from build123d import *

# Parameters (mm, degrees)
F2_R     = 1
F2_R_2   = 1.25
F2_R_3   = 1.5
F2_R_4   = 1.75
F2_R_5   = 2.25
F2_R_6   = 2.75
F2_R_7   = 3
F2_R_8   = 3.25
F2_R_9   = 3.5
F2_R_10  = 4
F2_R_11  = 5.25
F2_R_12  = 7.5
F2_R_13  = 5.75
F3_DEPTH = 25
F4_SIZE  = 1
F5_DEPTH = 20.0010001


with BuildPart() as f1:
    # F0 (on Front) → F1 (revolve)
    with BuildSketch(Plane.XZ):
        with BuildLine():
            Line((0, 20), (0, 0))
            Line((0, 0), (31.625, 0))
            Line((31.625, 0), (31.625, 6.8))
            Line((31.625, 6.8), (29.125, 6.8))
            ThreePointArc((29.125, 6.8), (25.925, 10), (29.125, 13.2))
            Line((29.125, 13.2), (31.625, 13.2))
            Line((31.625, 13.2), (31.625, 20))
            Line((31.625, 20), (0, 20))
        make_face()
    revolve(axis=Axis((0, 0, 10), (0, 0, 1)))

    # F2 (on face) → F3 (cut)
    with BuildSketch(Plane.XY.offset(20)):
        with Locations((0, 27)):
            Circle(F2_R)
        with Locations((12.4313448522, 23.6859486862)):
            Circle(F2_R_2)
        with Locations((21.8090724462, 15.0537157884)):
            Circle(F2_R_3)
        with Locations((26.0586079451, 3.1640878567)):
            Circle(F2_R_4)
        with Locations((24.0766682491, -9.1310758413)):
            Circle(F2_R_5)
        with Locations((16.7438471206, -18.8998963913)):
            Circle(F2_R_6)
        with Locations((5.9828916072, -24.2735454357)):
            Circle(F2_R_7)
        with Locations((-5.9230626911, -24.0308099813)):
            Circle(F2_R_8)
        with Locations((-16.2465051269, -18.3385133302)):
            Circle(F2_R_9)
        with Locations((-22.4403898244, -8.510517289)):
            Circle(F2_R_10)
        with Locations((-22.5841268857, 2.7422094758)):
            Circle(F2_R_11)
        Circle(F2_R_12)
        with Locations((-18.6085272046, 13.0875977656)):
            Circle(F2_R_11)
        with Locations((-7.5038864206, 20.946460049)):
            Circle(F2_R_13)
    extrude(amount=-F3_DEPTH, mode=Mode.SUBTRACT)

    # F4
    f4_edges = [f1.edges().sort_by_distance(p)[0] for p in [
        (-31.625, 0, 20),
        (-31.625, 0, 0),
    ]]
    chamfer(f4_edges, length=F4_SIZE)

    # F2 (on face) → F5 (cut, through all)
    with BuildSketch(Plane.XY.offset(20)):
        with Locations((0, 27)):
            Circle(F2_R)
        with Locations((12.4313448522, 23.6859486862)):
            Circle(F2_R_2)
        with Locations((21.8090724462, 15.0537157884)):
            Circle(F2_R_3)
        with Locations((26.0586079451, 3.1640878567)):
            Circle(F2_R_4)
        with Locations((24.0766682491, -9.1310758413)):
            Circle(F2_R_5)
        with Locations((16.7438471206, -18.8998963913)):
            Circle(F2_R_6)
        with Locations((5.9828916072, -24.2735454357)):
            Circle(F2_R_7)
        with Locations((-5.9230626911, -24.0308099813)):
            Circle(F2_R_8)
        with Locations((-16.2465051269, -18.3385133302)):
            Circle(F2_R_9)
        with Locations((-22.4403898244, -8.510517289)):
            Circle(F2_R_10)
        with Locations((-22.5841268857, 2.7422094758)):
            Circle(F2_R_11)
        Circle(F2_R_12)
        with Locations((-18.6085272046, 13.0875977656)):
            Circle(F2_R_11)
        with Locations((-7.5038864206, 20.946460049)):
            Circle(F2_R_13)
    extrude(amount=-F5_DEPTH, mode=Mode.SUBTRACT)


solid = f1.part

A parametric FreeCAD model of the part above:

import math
import FreeCAD as App
import Part
import Sketcher


def edges_at(feature, points):
    """Names of the edges that pass closest to the given points."""
    edges = feature.Shape.Edges
    near = lambda p: min(range(len(edges)), key=lambda i: edges[i].distToShape(Part.Vertex(*p))[0])
    return sorted({f"Edge{near(p) + 1}" for p in points})

doc = App.newDocument("Part")
body = doc.addObject("PartDesign::Body", "Body")

sketch1 = body.newObject("Sketcher::SketchObject", "Sketch")
sketch1.AttachmentSupport = (doc.getObject("XZ_Plane"), [""])
sketch1.MapMode = "FlatFace"
sketch1.addGeometry([
    Part.LineSegment(App.Vector(0, 20, 0), App.Vector(0, 0, 0)),
    Part.LineSegment(App.Vector(0, 0, 0), App.Vector(31.6, 0, 0)),
    Part.LineSegment(App.Vector(31.6, 0, 0), App.Vector(31.6, 6.8, 0)),
    Part.LineSegment(App.Vector(31.6, 6.8, 0), App.Vector(29.1, 6.8, 0)),
    Part.ArcOfCircle(Part.Circle(App.Vector(29.1, 10, 0), App.Vector(0, 0, 1), 3.2), math.radians(90), math.radians(270)),
    Part.LineSegment(App.Vector(29.1, 13.2, 0), App.Vector(31.6, 13.2, 0)),
    Part.LineSegment(App.Vector(31.6, 13.2, 0), App.Vector(31.6, 20, 0)),
    Part.LineSegment(App.Vector(31.6, 20, 0), App.Vector(0, 20, 0)),
], False)
sketch1.addConstraint([
    Sketcher.Constraint("Coincident", 0, 2, 1, 1),
    Sketcher.Constraint("Coincident", 1, 2, 2, 1),
    Sketcher.Constraint("Coincident", 2, 2, 3, 1),
    Sketcher.Constraint("Tangent", 3, 2, 4, 2),
    Sketcher.Constraint("Tangent", 4, 1, 5, 1),
    Sketcher.Constraint("Coincident", 5, 2, 6, 1),
    Sketcher.Constraint("Coincident", 6, 2, 7, 1),
    Sketcher.Constraint("Coincident", 7, 2, 0, 1),
    Sketcher.Constraint("Vertical", 0),
    Sketcher.Constraint("Horizontal", 1),
    Sketcher.Constraint("Vertical", 2),
    Sketcher.Constraint("Horizontal", 3),
    Sketcher.Constraint("Horizontal", 5),
    Sketcher.Constraint("Vertical", 6),
    Sketcher.Constraint("Horizontal", 7),
    Sketcher.Constraint("Coincident", 0, 2, -1, 1),
    Sketcher.Constraint("Vertical", 2, 2, 5, 2),
    Sketcher.Constraint("Equal", 2, 6),
    Sketcher.Constraint("Radius", 4, 3.2),
    Sketcher.Constraint("DistanceY", 0, 2, 0, 1, 20.0),
    Sketcher.Constraint("DistanceX", 3, 2, 3, 1, 2.5),
    Sketcher.Constraint("DistanceX", 1, 1, 1, 2, 31.625),
])
revolution = body.newObject("PartDesign::Revolution", "Revolution")
revolution.Profile = sketch1
revolution.ReferenceAxis = (sketch1, ["V_Axis"])
revolution.Angle = 360

sketch2 = body.newObject("Sketcher::SketchObject", "Sketch001")
sketch2.AttachmentSupport = (doc.getObject("XY_Plane"), [""])
sketch2.MapMode = "FlatFace"
sketch2.AttachmentOffset = App.Placement(App.Vector(0, 0, 20), App.Rotation())
sketch2.addGeometry([
    Part.Circle(App.Vector(0, 27, 0), App.Vector(0, 0, 1), 1),
    Part.Circle(App.Vector(12.4, 23.7, 0), App.Vector(0, 0, 1), 1.2),
    Part.Circle(App.Vector(21.8, 15.1, 0), App.Vector(0, 0, 1), 1.5),
    Part.Circle(App.Vector(26.1, 3.2, 0), App.Vector(0, 0, 1), 1.8),
    Part.Circle(App.Vector(24.1, -9.1, 0), App.Vector(0, 0, 1), 2.2),
    Part.Circle(App.Vector(16.7, -18.9, 0), App.Vector(0, 0, 1), 2.8),
    Part.Circle(App.Vector(6, -24.3, 0), App.Vector(0, 0, 1), 3),
    Part.Circle(App.Vector(-5.9, -24, 0), App.Vector(0, 0, 1), 3.2),
    Part.Circle(App.Vector(-16.2, -18.3, 0), App.Vector(0, 0, 1), 3.5),
    Part.Circle(App.Vector(-22.4, -8.5, 0), App.Vector(0, 0, 1), 4),
    Part.Circle(App.Vector(-22.6, 2.7, 0), App.Vector(0, 0, 1), 5.2),
    Part.Circle(App.Vector(0, 0, 0), App.Vector(0, 0, 1), 7.5),
    Part.Circle(App.Vector(-18.6, 13.1, 0), App.Vector(0, 0, 1), 5.2),
    Part.Circle(App.Vector(-7.5, 20.9, 0), App.Vector(0, 0, 1), 5.8),
], False)
sketch2.addConstraint([
    Sketcher.Constraint("Coincident", 11, 3, -1, 1),
    Sketcher.Constraint("Equal", 10, 12),
    Sketcher.Constraint("PointOnObject", 0, 3, -2),
    Sketcher.Constraint("Diameter", 0, 2.0),
    Sketcher.Constraint("Diameter", 2, 3.0),
    Sketcher.Constraint("Diameter", 6, 6.0),
    Sketcher.Constraint("Diameter", 8, 7.0),
    Sketcher.Constraint("Diameter", 9, 8.0),
    Sketcher.Constraint("Diameter", 11, 15.0),
    Sketcher.Constraint("Diameter", 1, 2.5),
    Sketcher.Constraint("Diameter", 3, 3.5),
    Sketcher.Constraint("Diameter", 4, 4.5),
    Sketcher.Constraint("Diameter", 5, 5.5),
    Sketcher.Constraint("Diameter", 7, 6.5),
    Sketcher.Constraint("Diameter", 10, 10.5),
    Sketcher.Constraint("Diameter", 13, 11.5),
    Sketcher.Constraint("DistanceY", -1, 1, 0, 3, 27.0),
    Sketcher.Constraint("DistanceY", 8, 3, 3, 3, 21.502601),
    Sketcher.Constraint("DistanceX", 10, 3, 12, 3, 3.9756),
    Sketcher.Constraint("DistanceY", -1, 1, 1, 3, 23.685949),
    Sketcher.Constraint("DistanceX", -1, 1, 4, 3, 24.076668),
    Sketcher.Constraint("DistanceX", -1, 1, 6, 3, 5.982892),
    Sketcher.Constraint("DistanceY", 7, 3, -1, 1, 24.03081),
    Sketcher.Constraint("DistanceX", 9, 3, -1, 1, 22.44039),
    Sketcher.Constraint("DistanceY", -1, 1, 10, 3, 2.742209),
    Sketcher.Constraint("DistanceY", -1, 1, 13, 3, 20.94646),
    Sketcher.Constraint("DistanceY", 3, 3, 1, 3, 20.521861),
    Sketcher.Constraint("DistanceX", 4, 3, 3, 3, 1.98194),
    Sketcher.Constraint("DistanceY", 4, 3, 2, 3, 24.184792),
    Sketcher.Constraint("DistanceX", 5, 3, 4, 3, 7.332821),
    Sketcher.Constraint("DistanceY", 5, 3, 4, 3, 9.768821),
    Sketcher.Constraint("DistanceY", 6, 3, 5, 3, 5.373649),
    Sketcher.Constraint("DistanceX", 6, 3, 2, 3, 15.826181),
    Sketcher.Constraint("DistanceX", 7, 3, 5, 3, 22.66691),
    Sketcher.Constraint("DistanceY", 6, 3, 9, 3, 15.763028),
    Sketcher.Constraint("DistanceX", 10, 3, 8, 3, 6.337622),
    Sketcher.Constraint("DistanceX", 10, 3, 6, 3, 28.567018),
    Sketcher.Constraint("DistanceY", 10, 3, 12, 3, 10.345388),
    Sketcher.Constraint("DistanceX", 12, 3, 13, 3, 11.104641),
    Sketcher.Constraint("DistanceX", 13, 3, 1, 3, 19.935231),
    Sketcher.Constraint("DistanceY", -1, 1, 2, 3, 15.053716),
])
pocket1 = body.newObject("PartDesign::Pocket", "Pocket")
pocket1.Profile = sketch2
pocket1.Length = 25
doc.recompute()

chamfer = body.newObject("PartDesign::Chamfer", "Chamfer")
chamfer.Base = (pocket1, edges_at(pocket1, [(-31.625, 0, 20), (-31.625, 0, 0)]))
chamfer.Size = 1

sketch3 = body.newObject("Sketcher::SketchObject", "Sketch002")
sketch3.AttachmentSupport = (doc.getObject("XY_Plane"), [""])
sketch3.MapMode = "FlatFace"
sketch3.AttachmentOffset = App.Placement(App.Vector(0, 0, 20), App.Rotation())
sketch3.addGeometry([
    Part.Circle(App.Vector(0, 27, 0), App.Vector(0, 0, 1), 1),
    Part.Circle(App.Vector(12.4, 23.7, 0), App.Vector(0, 0, 1), 1.2),
    Part.Circle(App.Vector(21.8, 15.1, 0), App.Vector(0, 0, 1), 1.5),
    Part.Circle(App.Vector(26.1, 3.2, 0), App.Vector(0, 0, 1), 1.8),
    Part.Circle(App.Vector(24.1, -9.1, 0), App.Vector(0, 0, 1), 2.2),
    Part.Circle(App.Vector(16.7, -18.9, 0), App.Vector(0, 0, 1), 2.8),
    Part.Circle(App.Vector(6, -24.3, 0), App.Vector(0, 0, 1), 3),
    Part.Circle(App.Vector(-5.9, -24, 0), App.Vector(0, 0, 1), 3.2),
    Part.Circle(App.Vector(-16.2, -18.3, 0), App.Vector(0, 0, 1), 3.5),
    Part.Circle(App.Vector(-22.4, -8.5, 0), App.Vector(0, 0, 1), 4),
    Part.Circle(App.Vector(-22.6, 2.7, 0), App.Vector(0, 0, 1), 5.2),
    Part.Circle(App.Vector(0, 0, 0), App.Vector(0, 0, 1), 7.5),
    Part.Circle(App.Vector(-18.6, 13.1, 0), App.Vector(0, 0, 1), 5.2),
    Part.Circle(App.Vector(-7.5, 20.9, 0), App.Vector(0, 0, 1), 5.8),
], False)
sketch3.addConstraint([
    Sketcher.Constraint("Coincident", 11, 3, -1, 1),
    Sketcher.Constraint("Equal", 10, 12),
    Sketcher.Constraint("PointOnObject", 0, 3, -2),
    Sketcher.Constraint("Diameter", 0, 2.0),
    Sketcher.Constraint("Diameter", 2, 3.0),
    Sketcher.Constraint("Diameter", 6, 6.0),
    Sketcher.Constraint("Diameter", 8, 7.0),
    Sketcher.Constraint("Diameter", 9, 8.0),
    Sketcher.Constraint("Diameter", 11, 15.0),
    Sketcher.Constraint("Diameter", 1, 2.5),
    Sketcher.Constraint("Diameter", 3, 3.5),
    Sketcher.Constraint("Diameter", 4, 4.5),
    Sketcher.Constraint("Diameter", 5, 5.5),
    Sketcher.Constraint("Diameter", 7, 6.5),
    Sketcher.Constraint("Diameter", 10, 10.5),
    Sketcher.Constraint("Diameter", 13, 11.5),
    Sketcher.Constraint("DistanceY", -1, 1, 0, 3, 27.0),
    Sketcher.Constraint("DistanceY", 8, 3, 3, 3, 21.502601),
    Sketcher.Constraint("DistanceX", 10, 3, 12, 3, 3.9756),
    Sketcher.Constraint("DistanceY", -1, 1, 1, 3, 23.685949),
    Sketcher.Constraint("DistanceX", -1, 1, 4, 3, 24.076668),
    Sketcher.Constraint("DistanceX", -1, 1, 6, 3, 5.982892),
    Sketcher.Constraint("DistanceY", 7, 3, -1, 1, 24.03081),
    Sketcher.Constraint("DistanceX", 9, 3, -1, 1, 22.44039),
    Sketcher.Constraint("DistanceY", -1, 1, 10, 3, 2.742209),
    Sketcher.Constraint("DistanceY", -1, 1, 13, 3, 20.94646),
    Sketcher.Constraint("DistanceY", 3, 3, 1, 3, 20.521861),
    Sketcher.Constraint("DistanceX", 4, 3, 3, 3, 1.98194),
    Sketcher.Constraint("DistanceY", 4, 3, 2, 3, 24.184792),
    Sketcher.Constraint("DistanceX", 5, 3, 4, 3, 7.332821),
    Sketcher.Constraint("DistanceY", 5, 3, 4, 3, 9.768821),
    Sketcher.Constraint("DistanceY", 6, 3, 5, 3, 5.373649),
    Sketcher.Constraint("DistanceX", 6, 3, 2, 3, 15.826181),
    Sketcher.Constraint("DistanceX", 7, 3, 5, 3, 22.66691),
    Sketcher.Constraint("DistanceY", 6, 3, 9, 3, 15.763028),
    Sketcher.Constraint("DistanceX", 10, 3, 8, 3, 6.337622),
    Sketcher.Constraint("DistanceX", 10, 3, 6, 3, 28.567018),
    Sketcher.Constraint("DistanceY", 10, 3, 12, 3, 10.345388),
    Sketcher.Constraint("DistanceX", 12, 3, 13, 3, 11.104641),
    Sketcher.Constraint("DistanceX", 13, 3, 1, 3, 19.935231),
    Sketcher.Constraint("DistanceY", -1, 1, 2, 3, 15.053716),
])
pocket2 = body.newObject("PartDesign::Pocket", "Pocket001")
pocket2.Profile = sketch3
pocket2.Type = "ThroughAll"

doc.recompute()
